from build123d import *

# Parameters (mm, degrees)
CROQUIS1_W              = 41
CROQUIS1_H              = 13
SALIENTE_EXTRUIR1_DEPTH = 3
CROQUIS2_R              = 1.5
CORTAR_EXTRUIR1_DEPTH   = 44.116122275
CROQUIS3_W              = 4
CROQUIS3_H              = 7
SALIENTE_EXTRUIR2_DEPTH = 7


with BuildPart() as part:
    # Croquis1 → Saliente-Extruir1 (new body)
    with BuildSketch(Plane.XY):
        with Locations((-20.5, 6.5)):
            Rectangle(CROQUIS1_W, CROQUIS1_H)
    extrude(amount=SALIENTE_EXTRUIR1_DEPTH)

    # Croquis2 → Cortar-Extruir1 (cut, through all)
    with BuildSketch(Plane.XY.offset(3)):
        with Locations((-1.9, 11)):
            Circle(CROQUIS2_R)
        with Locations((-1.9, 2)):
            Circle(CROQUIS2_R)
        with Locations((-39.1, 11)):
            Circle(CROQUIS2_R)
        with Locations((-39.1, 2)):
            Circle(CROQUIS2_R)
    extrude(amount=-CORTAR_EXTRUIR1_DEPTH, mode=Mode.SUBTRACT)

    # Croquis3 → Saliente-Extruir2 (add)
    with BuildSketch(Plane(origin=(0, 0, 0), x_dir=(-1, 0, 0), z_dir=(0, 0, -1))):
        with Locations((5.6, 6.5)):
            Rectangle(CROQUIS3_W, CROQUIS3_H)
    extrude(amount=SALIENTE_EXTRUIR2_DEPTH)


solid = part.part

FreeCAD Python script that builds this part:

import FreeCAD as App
import Part
import Sketcher

V = App.Vector


def add_polygon(sketch, points):
    """Adds a closed chain of lines whose ends are joined by coincident constraints."""
    first, n = sketch.GeometryCount, len(points)
    for a, b in zip(points, points[1:] + points[:1]):
        sketch.addGeometry(Part.LineSegment(App.Vector(*a, 0), App.Vector(*b, 0)), False)
    for i in range(n):
        sketch.addConstraint(Sketcher.Constraint("Coincident", first + i, 2, first + (i + 1) % n, 1))

doc = App.newDocument("Part")
body = doc.addObject("PartDesign::Body", "Body")

# Sketch on XY plane
sketch1 = doc.addObject("Sketcher::SketchObject", "Sketch")
body.addObject(sketch1)
sketch1.AttachmentSupport = (doc.XY_Plane, [""])
sketch1.MapMode = "FlatFace"
add_polygon(sketch1, [(-41, 13), (-41, 0), (0, 0), (0, 13)])  # lines 0-3
sketch1.addConstraint([
    Sketcher.Constraint("Vertical", 0),
    Sketcher.Constraint("Horizontal", 1),
    Sketcher.Constraint("Vertical", 2),
    Sketcher.Constraint("Horizontal", 3),
    Sketcher.Constraint("Coincident", 1, 2, -1, 1),
    Sketcher.Constraint("DistanceX", 1, 1, 1, 2, 41.0),
    Sketcher.Constraint("DistanceY", 0, 2, 0, 1, 13.0),
])
pad1 = doc.addObject("PartDesign::Pad", "Pad")
body.addObject(pad1)
pad1.Profile = sketch1
pad1.Length = 3

# Sketch on XY plane
sketch2 = doc.addObject("Sketcher::SketchObject", "Sketch001")
body.addObject(sketch2)
sketch2.AttachmentSupport = (doc.XY_Plane, [""])
sketch2.MapMode = "FlatFace"
sketch2.AttachmentOffset = App.Placement(V(0, 0, 3), App.Rotation())
sketch2.addGeometry([
    Part.Circle(V(-1.9, 11, 0), V(0, 0, 1), 1.5),
    Part.Circle(V(-1.9, 2, 0), V(0, 0, 1), 1.5),
    Part.Circle(V(-39.1, 11, 0), V(0, 0, 1), 1.5),
    Part.Circle(V(-39.1, 2, 0), V(0, 0, 1), 1.5),
], False)
sketch2.addConstraint([
    Sketcher.Constraint("Equal", 0, 1),
    Sketcher.Constraint("Equal", 1, 2),
    Sketcher.Constraint("Equal", 2, 3),
    Sketcher.Constraint("Horizontal", 0, 3, 2, 3),
    Sketcher.Constraint("Horizontal", 1, 3, 3, 3),
    Sketcher.Constraint("Vertical", 0, 3, 1, 3),
    Sketcher.Constraint("Vertical", 2, 3, 3, 3),
    Sketcher.Constraint("Diameter", 0, 3.0),
    Sketcher.Constraint("DistanceY", -1, 1, 0, 3, 11.0),
    Sketcher.Constraint("DistanceY", -1, 1, 1, 3, 2.0),
    Sketcher.Constraint("DistanceX", 0, 3, -1, 1, 1.9),
    Sketcher.Constraint("DistanceX", 2, 3, -1, 1, 39.1),
])
pocket1 = doc.addObject("PartDesign::Pocket", "Pocket")
body.addObject(pocket1)
pocket1.Profile = sketch2
pocket1.Type = "ThroughAll"

# Sketch on XY plane
sketch3 = doc.addObject("Sketcher::SketchObject", "Sketch002")
body.addObject(sketch3)
sketch3.AttachmentSupport = (doc.XY_Plane, [""])
sketch3.MapMode = "FlatFace"
add_polygon(sketch3, [(-3.6, 10), (-3.6, 3), (-7.6, 3), (-7.6, 10)])  # lines 0-3
sketch3.addConstraint([
    Sketcher.Constraint("Vertical", 0),
    Sketcher.Constraint("Horizontal", 1),
    Sketcher.Constraint("Vertical", 2),
    Sketcher.Constraint("Horizontal", 3),
    Sketcher.Constraint("DistanceX", 1, 2, 1, 1, 4.0),
    Sketcher.Constraint("DistanceY", 0, 2, 0, 1, 7.0),
    Sketcher.Constraint("DistanceY", -1, 1, 0, 2, 3.0),
    Sketcher.Constraint("DistanceX", 0, 2, -1, 1, 3.6),
])
pad2 = doc.addObject("PartDesign::Pad", "Pad001")
body.addObject(pad2)
pad2.Profile = sketch3
pad2.Length = 7
pad2.Reversed = True

doc.recompute()
